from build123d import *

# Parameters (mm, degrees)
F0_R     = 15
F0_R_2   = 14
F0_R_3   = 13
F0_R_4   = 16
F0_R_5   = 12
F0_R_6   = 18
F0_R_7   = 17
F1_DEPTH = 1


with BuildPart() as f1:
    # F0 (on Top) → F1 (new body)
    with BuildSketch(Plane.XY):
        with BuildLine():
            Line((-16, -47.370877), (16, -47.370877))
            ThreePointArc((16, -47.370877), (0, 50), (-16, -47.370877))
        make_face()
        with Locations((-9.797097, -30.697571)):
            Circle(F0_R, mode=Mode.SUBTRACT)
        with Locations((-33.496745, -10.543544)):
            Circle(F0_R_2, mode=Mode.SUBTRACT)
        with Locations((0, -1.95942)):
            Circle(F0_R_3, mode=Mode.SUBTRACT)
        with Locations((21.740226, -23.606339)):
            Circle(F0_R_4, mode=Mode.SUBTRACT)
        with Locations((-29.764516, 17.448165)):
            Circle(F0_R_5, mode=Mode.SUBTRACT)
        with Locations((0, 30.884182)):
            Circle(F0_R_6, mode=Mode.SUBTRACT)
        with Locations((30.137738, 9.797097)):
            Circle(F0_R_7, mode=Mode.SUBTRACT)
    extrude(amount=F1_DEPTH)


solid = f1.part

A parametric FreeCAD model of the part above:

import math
import FreeCAD as App
import Part
import Sketcher

V = App.Vector

doc = App.newDocument("Part")
body = doc.addObject("PartDesign::Body", "Body")

# Sketch on XY plane
sketch1 = body.newObject("Sketcher::SketchObject", "Sketch")
sketch1.AttachmentSupport = (doc.getObject("XY_Plane"), [""])
sketch1.MapMode = "FlatFace"
sketch1.addGeometry([
    Part.LineSegment(V(-16, -47, 0), V(16, -47, 0)),  # 0
    Part.ArcOfCircle(Part.Circle(V(0, 0, 0), V(0, 0, 1), 50), math.radians(-71), math.radians(251)),  # 1
    Part.Circle(V(-10, -31, 0), V(0, 0, 1), 15),  # 2
    Part.Circle(V(-33, -11, 0), V(0, 0, 1), 14),  # 3
    Part.Circle(V(22, -24, 0), V(0, 0, 1), 16),  # 4
    Part.Circle(V(0, -2, 0), V(0, 0, 1), 13),  # 5
    Part.Circle(V(-30, 17, 0), V(0, 0, 1), 12),  # 6
    Part.Circle(V(30, 10, 0), V(0, 0, 1), 17),  # 7
    Part.Circle(V(0, 31, 0), V(0, 0, 1), 18),  # 8
], False)
sketch1.addConstraint([
    Sketcher.Constraint("Coincident", 0, 1, 1, 2),
    Sketcher.Constraint("Coincident", 1, 1, 0, 2),
    Sketcher.Constraint("Horizontal", 0),
    Sketcher.Constraint("Coincident", 1, 3, -1, 1),
    Sketcher.Constraint("PointOnObject", 5, 3, -2),
    Sketcher.Constraint("PointOnObject", 8, 3, -2),
    Sketcher.Constraint("Diameter", 2, 30.0),
    Sketcher.Constraint("Diameter", 3, 28.0),
    Sketcher.Constraint("Diameter", 4, 32.0),
    Sketcher.Constraint("Diameter", 5, 26.0),
    Sketcher.Constraint("Diameter", 6, 24.0),
    Sketcher.Constraint("Diameter", 7, 34.0),
    Sketcher.Constraint("Diameter", 8, 36.0),
    Sketcher.Constraint("Radius", 1, 50.0),
    Sketcher.Constraint("DistanceX", 0, 1, 0, 2, 32.0),
    Sketcher.Constraint("DistanceY", 5, 3, 8, 3, 32.843602),
    Sketcher.Constraint("DistanceY", 2, 3, -1, 1, 30.697571),
    Sketcher.Constraint("DistanceY", 4, 3, -1, 1, 23.606339),
    Sketcher.Constraint("DistanceY", 5, 3, -1, 1, 1.95942),
    Sketcher.Constraint("DistanceX", 3, 3, 4, 3, 55.236971),
    Sketcher.Constraint("DistanceX", 3, 3, 6, 3, 3.732229),
    Sketcher.Constraint("DistanceY", 3, 3, 6, 3, 27.991709),
    Sketcher.Constraint("DistanceX", 6, 3, 2, 3, 19.967419),
    Sketcher.Constraint("DistanceX", 4, 3, 7, 3, 8.397512),
    Sketcher.Constraint("DistanceY", 2, 3, 7, 3, 40.494668),
    Sketcher.Constraint("DistanceX", 2, 3, -1, 1, 9.797097),
    Sketcher.Constraint("DistanceY", 3, 3, -1, 1, 10.543544),
])
pad1 = body.newObject("PartDesign::Pad", "Pad")
pad1.Profile = sketch1
pad1.Length = 1

doc.recompute()
